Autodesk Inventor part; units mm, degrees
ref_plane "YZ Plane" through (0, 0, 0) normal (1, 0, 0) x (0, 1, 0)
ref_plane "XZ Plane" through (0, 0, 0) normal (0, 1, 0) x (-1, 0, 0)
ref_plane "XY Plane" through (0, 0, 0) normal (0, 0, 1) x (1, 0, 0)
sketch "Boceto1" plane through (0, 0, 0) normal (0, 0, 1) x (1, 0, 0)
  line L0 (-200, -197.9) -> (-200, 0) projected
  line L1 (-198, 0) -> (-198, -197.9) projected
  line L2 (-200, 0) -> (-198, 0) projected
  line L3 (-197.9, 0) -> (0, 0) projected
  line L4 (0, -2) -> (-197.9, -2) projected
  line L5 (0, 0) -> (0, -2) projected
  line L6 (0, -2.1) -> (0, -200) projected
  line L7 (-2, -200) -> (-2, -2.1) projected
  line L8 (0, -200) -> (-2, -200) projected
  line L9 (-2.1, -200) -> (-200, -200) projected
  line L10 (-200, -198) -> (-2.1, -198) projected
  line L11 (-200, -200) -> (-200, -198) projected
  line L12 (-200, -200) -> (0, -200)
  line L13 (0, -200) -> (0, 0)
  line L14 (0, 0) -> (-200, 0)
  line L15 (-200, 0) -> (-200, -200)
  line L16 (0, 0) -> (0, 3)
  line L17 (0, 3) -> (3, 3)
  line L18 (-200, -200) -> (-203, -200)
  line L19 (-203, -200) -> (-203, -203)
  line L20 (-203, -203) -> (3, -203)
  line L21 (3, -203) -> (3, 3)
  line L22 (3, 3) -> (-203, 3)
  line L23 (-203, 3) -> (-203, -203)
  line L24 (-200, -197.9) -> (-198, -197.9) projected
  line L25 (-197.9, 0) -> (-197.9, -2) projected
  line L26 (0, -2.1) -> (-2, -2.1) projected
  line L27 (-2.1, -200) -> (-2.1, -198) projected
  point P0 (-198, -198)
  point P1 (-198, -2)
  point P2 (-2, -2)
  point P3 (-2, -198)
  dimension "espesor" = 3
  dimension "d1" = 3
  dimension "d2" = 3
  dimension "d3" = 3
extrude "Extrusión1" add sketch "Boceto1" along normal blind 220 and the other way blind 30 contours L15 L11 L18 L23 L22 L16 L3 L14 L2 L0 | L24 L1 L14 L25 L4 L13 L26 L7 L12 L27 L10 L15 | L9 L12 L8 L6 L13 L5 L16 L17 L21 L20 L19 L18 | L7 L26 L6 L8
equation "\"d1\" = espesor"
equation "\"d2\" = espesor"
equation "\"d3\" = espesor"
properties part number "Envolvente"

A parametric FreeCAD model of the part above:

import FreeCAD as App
import Part
import Sketcher
Q = App.Units.Quantity

doc = App.newDocument("Part")
body = doc.addObject("PartDesign::Body", "Body")

sketch1 = body.newObject("Sketcher::SketchObject", "Sketch")
sketch1.AttachmentSupport = (doc.getObject("XY_Plane"), [""])
sketch1.MapMode = "FlatFace"
sketch1.addGeometry([
    Part.LineSegment(App.Vector(-203, 3, 0), App.Vector(-203, -203, 0)),
    Part.LineSegment(App.Vector(-203, -203, 0), App.Vector(3, -203, 0)),
    Part.LineSegment(App.Vector(3, -203, 0), App.Vector(3, 3, 0)),
    Part.LineSegment(App.Vector(3, 3, 0), App.Vector(-203, 3, 0)),
    Part.LineSegment(App.Vector(-200, -200, 0), App.Vector(-200, -198, 0)),
    Part.LineSegment(App.Vector(-200, -198, 0), App.Vector(-2.1, -198, 0)),
    Part.LineSegment(App.Vector(-2.1, -198, 0), App.Vector(-2.1, -200, 0)),
    Part.LineSegment(App.Vector(-2.1, -200, 0), App.Vector(-200, -200, 0)),
    Part.LineSegment(App.Vector(-197.9, 0, 0), App.Vector(0, 0, 0)),
    Part.LineSegment(App.Vector(0, 0, 0), App.Vector(0, -2, 0)),
    Part.LineSegment(App.Vector(0, -2, 0), App.Vector(-197.9, -2, 0)),
    Part.LineSegment(App.Vector(-197.9, -2, 0), App.Vector(-197.9, 0, 0)),
    Part.LineSegment(App.Vector(-200, 0, 0), App.Vector(-198, 0, 0)),
    Part.LineSegment(App.Vector(-198, 0, 0), App.Vector(-198, -197.9, 0)),
    Part.LineSegment(App.Vector(-198, -197.9, 0), App.Vector(-200, -197.9, 0)),
    Part.LineSegment(App.Vector(-200, -197.9, 0), App.Vector(-200, 0, 0)),
], False)
sketch1.addConstraint([
    Sketcher.Constraint("Coincident", 0, 2, 1, 1),
    Sketcher.Constraint("Coincident", 1, 2, 2, 1),
    Sketcher.Constraint("Coincident", 2, 2, 3, 1),
    Sketcher.Constraint("Coincident", 3, 2, 0, 1),
    Sketcher.Constraint("Coincident", 4, 2, 5, 1),
    Sketcher.Constraint("Coincident", 5, 2, 6, 1),
    Sketcher.Constraint("Coincident", 6, 2, 7, 1),
    Sketcher.Constraint("Coincident", 7, 2, 4, 1),
    Sketcher.Constraint("Coincident", 8, 2, 9, 1),
    Sketcher.Constraint("Coincident", 9, 2, 10, 1),
    Sketcher.Constraint("Coincident", 10, 2, 11, 1),
    Sketcher.Constraint("Coincident", 11, 2, 8, 1),
    Sketcher.Constraint("Coincident", 12, 2, 13, 1),
    Sketcher.Constraint("Coincident", 13, 2, 14, 1),
    Sketcher.Constraint("Coincident", 14, 2, 15, 1),
    Sketcher.Constraint("Coincident", 15, 2, 12, 1),
    Sketcher.Constraint("Vertical", 0),
    Sketcher.Constraint("Horizontal", 1),
    Sketcher.Constraint("Vertical", 2),
    Sketcher.Constraint("Horizontal", 3),
    Sketcher.Constraint("Vertical", 4),
    Sketcher.Constraint("Horizontal", 5),
    Sketcher.Constraint("Vertical", 6),
    Sketcher.Constraint("Horizontal", 7),
    Sketcher.Constraint("Horizontal", 8),
    Sketcher.Constraint("Vertical", 9),
    Sketcher.Constraint("Horizontal", 10),
    Sketcher.Constraint("Vertical", 11),
    Sketcher.Constraint("Horizontal", 12),
    Sketcher.Constraint("Vertical", 13),
    Sketcher.Constraint("Horizontal", 14),
    Sketcher.Constraint("Vertical", 15),
    Sketcher.Constraint("Coincident", 8, 2, -1, 1),
    Sketcher.Constraint("PointOnObject", 12, 2, -1),
    Sketcher.Constraint("Vertical", 7, 2, 14, 2),
    Sketcher.Constraint("Equal", 7, 8),
    Sketcher.Constraint("Equal", 3, 0),
    Sketcher.Constraint("Equal", 14, 4),
    Sketcher.Constraint("Equal", 6, 9),
    Sketcher.Constraint("Equal", 10, 13),
    Sketcher.Constraint("DistanceX", -1, 1, 1, 2, Q("3 mm")),
    Sketcher.Constraint("DistanceY", -1, 1, 2, 2, Q("3 mm")),
    Sketcher.Constraint("DistanceX", 0, 2, 4, 2, Q("3 mm")),
    Sketcher.Constraint("DistanceY", 1, 2, 6, 2, Q("3 mm")),
    Sketcher.Constraint("DistanceX", 1, 1, 1, 2, Q("206 mm")),
    Sketcher.Constraint("DistanceX", 12, 1, 12, 2, Q("2 mm")),
    Sketcher.Constraint("DistanceX", 5, 1, 5, 2, Q("197.9 mm")),
])
pad1 = body.newObject("PartDesign::Pad", "Pad")
pad1.Profile = sketch1
pad1.Type = "TwoLengths"
pad1.Length = 220
pad1.Length2 = 30

doc.recompute()
